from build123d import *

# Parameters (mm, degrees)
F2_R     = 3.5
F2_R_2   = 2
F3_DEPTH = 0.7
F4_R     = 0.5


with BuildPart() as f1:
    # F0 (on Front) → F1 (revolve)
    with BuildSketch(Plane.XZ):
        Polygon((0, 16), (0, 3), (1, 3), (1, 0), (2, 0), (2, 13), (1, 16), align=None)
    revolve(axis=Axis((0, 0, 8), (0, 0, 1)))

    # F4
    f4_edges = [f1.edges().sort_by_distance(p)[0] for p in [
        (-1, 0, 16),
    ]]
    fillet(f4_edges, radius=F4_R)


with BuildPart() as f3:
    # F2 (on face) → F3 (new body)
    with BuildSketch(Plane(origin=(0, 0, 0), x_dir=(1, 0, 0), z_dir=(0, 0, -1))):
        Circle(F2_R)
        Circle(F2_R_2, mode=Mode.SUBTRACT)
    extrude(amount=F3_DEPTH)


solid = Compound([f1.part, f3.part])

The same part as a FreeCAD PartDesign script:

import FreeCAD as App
import Part
import Sketcher

V = App.Vector


def edges_at(feature, points):
    """Names of the edges that pass closest to the given points."""
    edges = feature.Shape.Edges
    near = lambda p: min(range(len(edges)), key=lambda i: edges[i].distToShape(Part.Vertex(*p))[0])
    return sorted({f"Edge{near(p) + 1}" for p in points})


def add_polygon(sketch, points):
    """Adds a closed chain of lines whose ends are joined by coincident constraints."""
    first, n = sketch.GeometryCount, len(points)
    for a, b in zip(points, points[1:] + points[:1]):
        sketch.addGeometry(Part.LineSegment(App.Vector(*a, 0), App.Vector(*b, 0)), False)
    for i in range(n):
        sketch.addConstraint(Sketcher.Constraint("Coincident", first + i, 2, first + (i + 1) % n, 1))

doc = App.newDocument("Part")
body = doc.addObject("PartDesign::Body", "Body")

# Sketch on XZ plane
sketch1 = body.newObject("Sketcher::SketchObject", "Sketch")
sketch1.AttachmentSupport = (doc.getObject("XZ_Plane"), [""])
sketch1.MapMode = "FlatFace"
add_polygon(sketch1, [(0, 16), (0, 3), (1, 3), (1, 0), (2, 0), (2, 13), (1, 16)])  # lines 0-6
sketch1.addConstraint(Sketcher.Constraint("Vertical", 0))
sketch1.addConstraint(Sketcher.Constraint("Horizontal", 1))
sketch1.addConstraint(Sketcher.Constraint("Vertical", 2))
sketch1.addConstraint(Sketcher.Constraint("Horizontal", 3))
sketch1.addConstraint(Sketcher.Constraint("Vertical", 4))
sketch1.addConstraint(Sketcher.Constraint("Horizontal", 6))
sketch1.addConstraint(Sketcher.Constraint("PointOnObject", 0, 2, -2))
sketch1.addConstraint(Sketcher.Constraint("PointOnObject", 2, 2, -1))
sketch1.addConstraint(Sketcher.Constraint("Vertical", 2, 2, 5, 2))
sketch1.addConstraint(Sketcher.Constraint("Equal", 1, 3))
sketch1.addConstraint(Sketcher.Constraint("Equal", 0, 4))
sketch1.addConstraint(Sketcher.Constraint("DistanceX", 1, 1, 1, 2, 1.0))
sketch1.addConstraint(Sketcher.Constraint("DistanceY", 0, 2, 0, 1, 13.0))
sketch1.addConstraint(Sketcher.Constraint("DistanceY", 2, 2, 2, 1, 3.0))
revolution = body.newObject("PartDesign::Revolution", "Revolution")
revolution.Profile = sketch1
revolution.ReferenceAxis = (sketch1, ["V_Axis"])
revolution.Angle = 360
doc.recompute()

fillet = body.newObject("PartDesign::Fillet", "Fillet")
fillet.Base = (revolution, edges_at(revolution, [(-1, 0, 16)]))
fillet.Radius = 0.5
body2 = doc.addObject("PartDesign::Body", "Body001")

# Sketch on XY plane
sketch2 = body2.newObject("Sketcher::SketchObject", "Sketch001")
sketch2.AttachmentSupport = (doc.getObject("XY_Plane001"), [""])
sketch2.MapMode = "FlatFace"
sketch2.addGeometry(Part.Circle(V(0, 0, 0), V(0, 0, 1), 3.5), False)
sketch2.addGeometry(Part.Circle(V(0, 0, 0), V(0, 0, 1), 2), False)
sketch2.addConstraint(Sketcher.Constraint("Coincident", 0, 3, -1, 1))
sketch2.addConstraint(Sketcher.Constraint("Coincident", 1, 3, -1, 1))
sketch2.addConstraint(Sketcher.Constraint("Diameter", 0, 7.0))
sketch2.addConstraint(Sketcher.Constraint("Diameter", 1, 4.0))
pad1 = body2.newObject("PartDesign::Pad", "Pad")
pad1.Profile = sketch2
pad1.Length = 0.7
pad1.Reversed = True

doc.recompute()
